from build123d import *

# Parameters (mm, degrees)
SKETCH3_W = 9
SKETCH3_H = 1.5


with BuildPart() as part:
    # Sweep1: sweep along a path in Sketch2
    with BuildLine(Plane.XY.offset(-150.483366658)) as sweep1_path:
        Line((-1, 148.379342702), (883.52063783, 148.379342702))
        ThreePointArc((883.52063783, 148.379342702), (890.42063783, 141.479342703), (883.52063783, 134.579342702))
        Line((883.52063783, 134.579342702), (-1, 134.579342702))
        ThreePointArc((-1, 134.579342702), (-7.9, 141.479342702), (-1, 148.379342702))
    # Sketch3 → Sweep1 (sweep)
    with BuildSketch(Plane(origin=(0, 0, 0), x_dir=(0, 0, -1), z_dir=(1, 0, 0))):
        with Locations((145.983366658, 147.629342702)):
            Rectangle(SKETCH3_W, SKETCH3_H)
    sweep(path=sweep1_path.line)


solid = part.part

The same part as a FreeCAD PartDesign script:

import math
import FreeCAD as App
import Part
import Sketcher

V = App.Vector


def add_polygon(sketch, points):
    """Adds a closed chain of lines whose ends are joined by coincident constraints."""
    first, n = sketch.GeometryCount, len(points)
    for a, b in zip(points, points[1:] + points[:1]):
        sketch.addGeometry(Part.LineSegment(App.Vector(*a, 0), App.Vector(*b, 0)), False)
    for i in range(n):
        sketch.addConstraint(Sketcher.Constraint("Coincident", first + i, 2, first + (i + 1) % n, 1))

doc = App.newDocument("Part")
body = doc.addObject("PartDesign::Body", "Body")

sketch1 = doc.addObject("Sketcher::SketchObject", "Sketch")
body.addObject(sketch1)
sketch1.AttachmentSupport = (doc.YZ_Plane, [""])
sketch1.MapMode = "FlatFace"
add_polygon(sketch1, [(148.379343, -141.483367), (146.879343, -141.483367), (146.879343, -150.483367), (148.379343, -150.483367)])
sketch1.addConstraint([
    Sketcher.Constraint("Horizontal", 0),
    Sketcher.Constraint("Vertical", 1),
    Sketcher.Constraint("Horizontal", 2),
    Sketcher.Constraint("Vertical", 3),
    Sketcher.Constraint("DistanceY", 1, 2, 1, 1, 9.0),
    Sketcher.Constraint("DistanceX", 0, 2, 0, 1, 1.5),
    Sketcher.Constraint("DistanceX", -1, 1, 0, 2, 146.879343),
    Sketcher.Constraint("DistanceY", 0, 2, -1, 1, 141.483367),
])

sketch2 = doc.addObject("Sketcher::SketchObject", "Sketch001")
body.addObject(sketch2)
sketch2.AttachmentSupport = (doc.XY_Plane, [""])
sketch2.MapMode = "FlatFace"
sketch2.AttachmentOffset = App.Placement(V(0, 0, -150.483367), App.Rotation())
sketch2.addGeometry([
    Part.LineSegment(V(-1, 148.379343, 0), V(883.520638, 148.379343, 0)),
    Part.ArcOfCircle(Part.Circle(V(883.520638, 141.479343, 0), V(0, 0, 1), 6.9), math.radians(-90), math.radians(90)),
    Part.LineSegment(V(883.520638, 134.579343, 0), V(-1, 134.579343, 0)),
    Part.ArcOfCircle(Part.Circle(V(-1, 141.479343, 0), V(0, 0, 1), 6.9), math.radians(90), math.radians(270)),
], False)
sketch2.addConstraint([
    Sketcher.Constraint("Tangent", 0, 2, 1, 2),
    Sketcher.Constraint("Tangent", 1, 1, 2, 1),
    Sketcher.Constraint("Tangent", 2, 2, 3, 2),
    Sketcher.Constraint("Tangent", 3, 1, 0, 1),
    Sketcher.Constraint("Horizontal", 0),
    Sketcher.Constraint("Horizontal", 2),
    Sketcher.Constraint("Radius", 1, 6.9),
    Sketcher.Constraint("DistanceX", 3, 3, -1, 1, 1.0),
    Sketcher.Constraint("DistanceX", 0, 1, 0, 2, 884.520638),
    Sketcher.Constraint("DistanceY", -1, 1, 1, 3, 141.479343),
])
doc.recompute()

additivepipe = doc.addObject("PartDesign::AdditivePipe", "AdditivePipe")
body.addObject(additivepipe)
additivepipe.Profile = sketch1
additivepipe.Spine = (sketch2, ["Edge1", "Edge2", "Edge3", "Edge4"])

doc.recompute()
